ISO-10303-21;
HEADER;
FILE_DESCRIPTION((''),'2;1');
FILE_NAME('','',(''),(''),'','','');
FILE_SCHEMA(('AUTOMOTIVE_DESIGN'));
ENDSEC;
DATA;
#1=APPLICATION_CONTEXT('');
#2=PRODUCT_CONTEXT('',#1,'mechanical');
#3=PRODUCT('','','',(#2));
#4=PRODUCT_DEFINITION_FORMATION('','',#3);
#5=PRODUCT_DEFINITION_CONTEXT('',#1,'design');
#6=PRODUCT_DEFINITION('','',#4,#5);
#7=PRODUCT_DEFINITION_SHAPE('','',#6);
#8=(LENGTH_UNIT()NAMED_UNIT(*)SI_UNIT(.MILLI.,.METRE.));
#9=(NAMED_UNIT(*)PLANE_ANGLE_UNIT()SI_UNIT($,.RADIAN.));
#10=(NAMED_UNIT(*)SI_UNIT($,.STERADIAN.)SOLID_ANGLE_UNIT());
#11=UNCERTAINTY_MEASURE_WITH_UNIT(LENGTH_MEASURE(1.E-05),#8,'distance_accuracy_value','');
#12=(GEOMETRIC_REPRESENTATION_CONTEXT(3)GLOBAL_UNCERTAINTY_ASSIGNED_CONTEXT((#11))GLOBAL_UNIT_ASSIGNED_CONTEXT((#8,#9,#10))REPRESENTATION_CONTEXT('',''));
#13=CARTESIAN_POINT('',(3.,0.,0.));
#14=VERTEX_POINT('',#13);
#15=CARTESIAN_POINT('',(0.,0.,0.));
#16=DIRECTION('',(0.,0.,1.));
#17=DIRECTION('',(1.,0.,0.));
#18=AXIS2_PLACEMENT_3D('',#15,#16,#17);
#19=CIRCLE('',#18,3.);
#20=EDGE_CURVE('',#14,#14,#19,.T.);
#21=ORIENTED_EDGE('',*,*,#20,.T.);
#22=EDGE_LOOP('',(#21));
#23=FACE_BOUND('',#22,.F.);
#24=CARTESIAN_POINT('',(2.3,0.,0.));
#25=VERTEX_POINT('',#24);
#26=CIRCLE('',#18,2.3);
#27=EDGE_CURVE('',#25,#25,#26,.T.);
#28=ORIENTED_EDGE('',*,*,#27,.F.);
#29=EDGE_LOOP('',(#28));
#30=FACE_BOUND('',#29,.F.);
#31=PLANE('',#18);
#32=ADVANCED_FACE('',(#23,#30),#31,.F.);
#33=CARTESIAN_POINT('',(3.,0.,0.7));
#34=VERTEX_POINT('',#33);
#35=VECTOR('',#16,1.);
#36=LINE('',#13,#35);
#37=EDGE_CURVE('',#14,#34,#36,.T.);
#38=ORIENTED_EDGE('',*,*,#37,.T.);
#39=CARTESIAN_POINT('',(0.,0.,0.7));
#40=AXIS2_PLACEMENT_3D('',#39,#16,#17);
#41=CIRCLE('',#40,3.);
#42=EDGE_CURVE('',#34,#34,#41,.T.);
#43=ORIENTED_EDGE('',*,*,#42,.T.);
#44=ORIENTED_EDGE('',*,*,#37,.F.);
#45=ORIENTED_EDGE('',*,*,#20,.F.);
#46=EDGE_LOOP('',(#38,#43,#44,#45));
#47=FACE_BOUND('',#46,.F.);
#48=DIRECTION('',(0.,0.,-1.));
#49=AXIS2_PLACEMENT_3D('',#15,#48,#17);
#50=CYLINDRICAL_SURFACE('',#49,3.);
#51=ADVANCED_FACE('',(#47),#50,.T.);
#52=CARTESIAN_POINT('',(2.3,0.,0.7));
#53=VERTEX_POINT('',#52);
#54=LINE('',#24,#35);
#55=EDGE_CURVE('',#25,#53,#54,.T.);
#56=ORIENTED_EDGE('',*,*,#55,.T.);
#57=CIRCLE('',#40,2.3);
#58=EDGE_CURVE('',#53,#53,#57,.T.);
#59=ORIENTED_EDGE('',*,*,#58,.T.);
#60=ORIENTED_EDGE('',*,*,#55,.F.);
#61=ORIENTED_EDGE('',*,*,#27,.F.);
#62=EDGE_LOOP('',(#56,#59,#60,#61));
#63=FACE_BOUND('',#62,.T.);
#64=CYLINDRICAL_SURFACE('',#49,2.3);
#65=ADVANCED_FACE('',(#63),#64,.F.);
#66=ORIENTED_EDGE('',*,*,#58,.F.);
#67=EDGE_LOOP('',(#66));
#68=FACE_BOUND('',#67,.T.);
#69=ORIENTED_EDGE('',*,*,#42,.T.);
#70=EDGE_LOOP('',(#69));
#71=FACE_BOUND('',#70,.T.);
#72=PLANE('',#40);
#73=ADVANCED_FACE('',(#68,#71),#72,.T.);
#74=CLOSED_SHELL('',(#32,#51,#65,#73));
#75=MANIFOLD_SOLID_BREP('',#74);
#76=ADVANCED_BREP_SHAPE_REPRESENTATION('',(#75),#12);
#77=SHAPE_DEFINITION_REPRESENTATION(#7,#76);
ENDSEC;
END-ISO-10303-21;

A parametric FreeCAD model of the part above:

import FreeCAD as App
import Part
import Sketcher

doc = App.newDocument("Part")
body = doc.addObject("PartDesign::Body", "Body")

# Sketch on XY plane
sketch1 = body.newObject("Sketcher::SketchObject", "Sketch")
sketch1.AttachmentSupport = (doc.getObject("XY_Plane"), [""])
sketch1.MapMode = "FlatFace"
sketch1.addGeometry([
    Part.Circle(App.Vector(0, 0, 0), App.Vector(0, 0, 1), 3),
    Part.Circle(App.Vector(0, 0, 0), App.Vector(0, 0, 1), 2.3),
], False)
sketch1.addConstraint([
    Sketcher.Constraint("Coincident", 0, 3, -1, 1),
    Sketcher.Constraint("Coincident", 1, 3, -1, 1),
    Sketcher.Constraint("Diameter", 0, 6.0),
    Sketcher.Constraint("Diameter", 1, 4.6),
])
pad1 = body.newObject("PartDesign::Pad", "Pad")
pad1.Profile = sketch1
pad1.Length = 0.7

doc.recompute()
